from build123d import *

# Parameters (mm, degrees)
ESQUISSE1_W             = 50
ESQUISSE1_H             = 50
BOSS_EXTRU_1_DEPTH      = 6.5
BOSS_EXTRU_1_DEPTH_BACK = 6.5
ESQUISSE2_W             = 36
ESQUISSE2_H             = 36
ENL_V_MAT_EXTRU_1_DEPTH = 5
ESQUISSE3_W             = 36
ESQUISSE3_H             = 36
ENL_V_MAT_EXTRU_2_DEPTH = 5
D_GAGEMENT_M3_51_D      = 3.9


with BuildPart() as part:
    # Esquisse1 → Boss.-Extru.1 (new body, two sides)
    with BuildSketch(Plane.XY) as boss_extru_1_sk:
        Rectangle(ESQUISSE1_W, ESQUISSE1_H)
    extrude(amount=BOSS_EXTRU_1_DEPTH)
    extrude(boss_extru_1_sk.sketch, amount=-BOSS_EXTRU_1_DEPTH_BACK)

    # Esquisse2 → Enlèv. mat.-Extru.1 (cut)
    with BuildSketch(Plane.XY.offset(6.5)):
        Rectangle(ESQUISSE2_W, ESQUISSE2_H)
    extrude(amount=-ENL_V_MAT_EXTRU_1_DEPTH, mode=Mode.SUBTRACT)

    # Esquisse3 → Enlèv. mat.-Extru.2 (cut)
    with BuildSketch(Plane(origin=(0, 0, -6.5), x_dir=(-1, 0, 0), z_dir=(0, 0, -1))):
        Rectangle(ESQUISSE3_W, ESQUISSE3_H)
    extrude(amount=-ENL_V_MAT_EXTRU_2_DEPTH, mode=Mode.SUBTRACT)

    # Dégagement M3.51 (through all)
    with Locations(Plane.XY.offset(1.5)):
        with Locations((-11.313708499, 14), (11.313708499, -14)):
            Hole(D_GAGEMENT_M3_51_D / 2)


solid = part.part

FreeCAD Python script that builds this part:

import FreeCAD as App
import Part
import Sketcher


def add_polygon(sketch, points):
    """Adds a closed chain of lines whose ends are joined by coincident constraints."""
    first, n = sketch.GeometryCount, len(points)
    for a, b in zip(points, points[1:] + points[:1]):
        sketch.addGeometry(Part.LineSegment(App.Vector(*a, 0), App.Vector(*b, 0)), False)
    for i in range(n):
        sketch.addConstraint(Sketcher.Constraint("Coincident", first + i, 2, first + (i + 1) % n, 1))

doc = App.newDocument("Part")
body = doc.addObject("PartDesign::Body", "Body")

# Sketch on XY plane
sketch1 = body.newObject("Sketcher::SketchObject", "Sketch")
sketch1.AttachmentSupport = (doc.getObject("XY_Plane"), [""])
sketch1.MapMode = "FlatFace"
add_polygon(sketch1, [(-25, 25), (-25, -25), (25, -25), (25, 25)])  # lines 0-3
sketch1.addConstraint([
    Sketcher.Constraint("Vertical", 0),
    Sketcher.Constraint("Horizontal", 1),
    Sketcher.Constraint("Vertical", 2),
    Sketcher.Constraint("Horizontal", 3),
    Sketcher.Constraint("Symmetric", 0, 2, 2, 2, -1, 1),
    Sketcher.Constraint("Equal", 3, 0),
    Sketcher.Constraint("DistanceX", 1, 1, 1, 2, 50.0),
])
pad1 = body.newObject("PartDesign::Pad", "Pad")
pad1.Profile = sketch1
pad1.Type = "TwoLengths"
pad1.Length = 6.5
pad1.Length2 = 6.5

# Sketch on XY plane
sketch2 = body.newObject("Sketcher::SketchObject", "Sketch001")
sketch2.AttachmentSupport = (doc.getObject("XY_Plane"), [""])
sketch2.MapMode = "FlatFace"
sketch2.AttachmentOffset = App.Placement(App.Vector(0, 0, 6.5), App.Rotation())
add_polygon(sketch2, [(-18, 18), (-18, -18), (18, -18), (18, 18)])  # lines 0-3
sketch2.addConstraint([
    Sketcher.Constraint("Vertical", 0),
    Sketcher.Constraint("Horizontal", 1),
    Sketcher.Constraint("Vertical", 2),
    Sketcher.Constraint("Horizontal", 3),
    Sketcher.Constraint("Symmetric", 0, 2, 2, 2, -1, 1),
    Sketcher.Constraint("Equal", 3, 0),
    Sketcher.Constraint("DistanceX", 1, 1, 1, 2, 36.0),
])
pocket1 = body.newObject("PartDesign::Pocket", "Pocket")
pocket1.Profile = sketch2
pocket1.Length = 5

# Sketch on XY plane
sketch3 = body.newObject("Sketcher::SketchObject", "Sketch002")
sketch3.AttachmentSupport = (doc.getObject("XY_Plane"), [""])
sketch3.MapMode = "FlatFace"
sketch3.AttachmentOffset = App.Placement(App.Vector(0, 0, -6.5), App.Rotation())
add_polygon(sketch3, [(18, 18), (18, -18), (-18, -18), (-18, 18)])  # lines 0-3
sketch3.addConstraint([
    Sketcher.Constraint("Vertical", 0),
    Sketcher.Constraint("Horizontal", 1),
    Sketcher.Constraint("Vertical", 2),
    Sketcher.Constraint("Horizontal", 3),
    Sketcher.Constraint("Symmetric", 0, 2, 2, 2, -1, 1),
    Sketcher.Constraint("Equal", 3, 0),
    Sketcher.Constraint("DistanceX", 1, 2, 1, 1, 36.0),
])
pocket2 = body.newObject("PartDesign::Pocket", "Pocket001")
pocket2.Profile = sketch3
pocket2.Length = 5
pocket2.Reversed = True

# Sketch on XY plane
sketch4 = body.newObject("Sketcher::SketchObject", "Sketch003")
sketch4.AttachmentSupport = (doc.getObject("XY_Plane"), [""])
sketch4.MapMode = "FlatFace"
sketch4.AttachmentOffset = App.Placement(App.Vector(0, 0, 1.5), App.Rotation())
sketch4.addGeometry([
    Part.Circle(App.Vector(-11.313708, 14, 0), App.Vector(0, 0, 1), 1.95),
    Part.Circle(App.Vector(11.313708, -14, 0), App.Vector(0, 0, 1), 1.95),
], False)
sketch4.addConstraint([
    Sketcher.Constraint("Equal", 0, 1),
    Sketcher.Constraint("Symmetric", 0, 3, 1, 3, -1, 1),
    Sketcher.Constraint("Diameter", 0, 3.9),
    Sketcher.Constraint("DistanceY", -1, 1, 0, 3, 14.0),
    Sketcher.Constraint("DistanceX", 0, 3, -1, 1, 11.313708),
])
doc.recompute()
hole = body.newObject("PartDesign::Hole", "Hole")
hole.Profile = sketch4
hole.ThreadType = "None"
hole.Diameter = 3.9
hole.DepthType = "ThroughAll"

doc.recompute()
